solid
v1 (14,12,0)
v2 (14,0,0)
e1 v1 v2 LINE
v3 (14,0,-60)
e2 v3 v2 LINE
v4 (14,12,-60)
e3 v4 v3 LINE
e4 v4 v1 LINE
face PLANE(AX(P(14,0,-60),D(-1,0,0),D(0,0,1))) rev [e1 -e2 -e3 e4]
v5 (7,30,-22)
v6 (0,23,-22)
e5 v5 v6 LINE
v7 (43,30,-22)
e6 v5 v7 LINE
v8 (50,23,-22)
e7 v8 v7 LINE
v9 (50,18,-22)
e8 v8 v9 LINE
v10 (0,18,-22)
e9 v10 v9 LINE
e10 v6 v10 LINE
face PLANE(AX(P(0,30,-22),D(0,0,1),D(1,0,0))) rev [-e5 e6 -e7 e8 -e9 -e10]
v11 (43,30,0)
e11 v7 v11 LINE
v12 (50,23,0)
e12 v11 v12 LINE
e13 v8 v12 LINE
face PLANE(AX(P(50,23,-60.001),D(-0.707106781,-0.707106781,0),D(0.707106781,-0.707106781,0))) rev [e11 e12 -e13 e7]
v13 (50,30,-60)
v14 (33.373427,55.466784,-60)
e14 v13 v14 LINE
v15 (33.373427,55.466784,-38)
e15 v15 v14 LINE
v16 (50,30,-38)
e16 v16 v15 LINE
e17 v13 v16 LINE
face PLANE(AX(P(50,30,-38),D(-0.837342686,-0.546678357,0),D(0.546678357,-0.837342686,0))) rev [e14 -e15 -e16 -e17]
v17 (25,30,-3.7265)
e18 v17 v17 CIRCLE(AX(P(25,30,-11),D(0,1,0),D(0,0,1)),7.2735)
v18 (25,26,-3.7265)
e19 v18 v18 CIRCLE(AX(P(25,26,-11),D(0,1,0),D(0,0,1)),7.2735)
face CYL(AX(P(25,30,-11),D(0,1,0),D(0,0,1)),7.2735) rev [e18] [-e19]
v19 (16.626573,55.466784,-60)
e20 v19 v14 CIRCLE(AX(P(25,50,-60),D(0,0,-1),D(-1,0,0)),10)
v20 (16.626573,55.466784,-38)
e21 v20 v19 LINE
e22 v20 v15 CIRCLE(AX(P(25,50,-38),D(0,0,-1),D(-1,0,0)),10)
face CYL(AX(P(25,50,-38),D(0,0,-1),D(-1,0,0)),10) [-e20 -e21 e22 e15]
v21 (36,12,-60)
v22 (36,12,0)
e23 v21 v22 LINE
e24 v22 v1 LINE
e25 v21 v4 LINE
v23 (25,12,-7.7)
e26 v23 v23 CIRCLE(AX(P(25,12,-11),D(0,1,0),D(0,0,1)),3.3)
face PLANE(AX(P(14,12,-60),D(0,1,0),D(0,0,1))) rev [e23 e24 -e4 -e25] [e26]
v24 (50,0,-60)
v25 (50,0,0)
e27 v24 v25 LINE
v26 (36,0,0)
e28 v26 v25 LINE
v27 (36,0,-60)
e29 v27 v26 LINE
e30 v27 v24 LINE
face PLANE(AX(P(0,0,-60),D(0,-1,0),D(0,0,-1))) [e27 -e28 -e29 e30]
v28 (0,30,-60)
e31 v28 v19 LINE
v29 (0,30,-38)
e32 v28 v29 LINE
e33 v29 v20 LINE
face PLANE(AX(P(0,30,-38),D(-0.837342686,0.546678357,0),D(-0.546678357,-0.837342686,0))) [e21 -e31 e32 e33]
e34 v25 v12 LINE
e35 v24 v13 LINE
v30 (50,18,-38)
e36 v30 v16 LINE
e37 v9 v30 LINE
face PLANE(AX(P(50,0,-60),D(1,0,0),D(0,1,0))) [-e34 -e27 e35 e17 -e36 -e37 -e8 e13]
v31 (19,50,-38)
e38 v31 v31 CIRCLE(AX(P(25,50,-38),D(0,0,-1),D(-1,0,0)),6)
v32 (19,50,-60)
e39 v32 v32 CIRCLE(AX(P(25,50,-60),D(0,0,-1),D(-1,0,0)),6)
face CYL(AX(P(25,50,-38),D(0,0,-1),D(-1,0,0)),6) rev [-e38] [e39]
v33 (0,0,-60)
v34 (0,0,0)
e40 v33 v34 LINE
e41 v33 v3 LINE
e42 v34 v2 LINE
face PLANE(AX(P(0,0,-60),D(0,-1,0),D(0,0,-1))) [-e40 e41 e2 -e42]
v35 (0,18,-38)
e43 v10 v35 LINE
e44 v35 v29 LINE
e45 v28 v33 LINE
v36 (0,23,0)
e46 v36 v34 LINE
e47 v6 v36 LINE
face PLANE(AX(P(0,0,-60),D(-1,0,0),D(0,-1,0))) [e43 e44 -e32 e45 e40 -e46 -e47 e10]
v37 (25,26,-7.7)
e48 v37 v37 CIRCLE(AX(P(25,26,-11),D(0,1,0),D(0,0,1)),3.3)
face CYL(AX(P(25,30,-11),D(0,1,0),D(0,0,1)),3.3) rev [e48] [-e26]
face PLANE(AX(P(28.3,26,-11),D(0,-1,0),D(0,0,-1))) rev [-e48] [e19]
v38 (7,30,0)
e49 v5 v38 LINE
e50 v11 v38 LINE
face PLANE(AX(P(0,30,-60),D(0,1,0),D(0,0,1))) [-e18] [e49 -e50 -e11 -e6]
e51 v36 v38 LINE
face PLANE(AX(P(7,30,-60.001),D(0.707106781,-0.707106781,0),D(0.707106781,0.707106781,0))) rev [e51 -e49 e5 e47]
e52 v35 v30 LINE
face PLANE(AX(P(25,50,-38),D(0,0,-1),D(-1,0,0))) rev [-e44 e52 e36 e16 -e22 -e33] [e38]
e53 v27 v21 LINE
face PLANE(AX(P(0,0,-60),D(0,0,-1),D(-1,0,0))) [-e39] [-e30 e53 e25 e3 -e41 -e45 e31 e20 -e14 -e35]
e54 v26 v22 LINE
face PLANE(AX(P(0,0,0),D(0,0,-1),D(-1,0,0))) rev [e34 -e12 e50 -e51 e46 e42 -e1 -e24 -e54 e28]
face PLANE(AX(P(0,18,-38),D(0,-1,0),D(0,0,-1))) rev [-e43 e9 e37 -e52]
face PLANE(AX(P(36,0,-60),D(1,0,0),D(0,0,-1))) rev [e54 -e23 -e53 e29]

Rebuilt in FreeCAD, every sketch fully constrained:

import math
import FreeCAD as App
import Part
import Sketcher
from FreeCAD import Vector

doc = App.newDocument("Part")
body = doc.addObject("PartDesign::Body", "Body")

# Sketch on XY plane
sketch1 = body.newObject("Sketcher::SketchObject", "Sketch")
sketch1.AttachmentSupport = (doc.getObject("XY_Plane"), [""])
sketch1.MapMode = "FlatFace"
sketch1.addGeometry([
    Part.LineSegment(Vector(0, 30, 0), Vector(0, 0, 0)),
    Part.LineSegment(Vector(0, 0, 0), Vector(50, 0, 0)),
    Part.LineSegment(Vector(50, 0, 0), Vector(50, 30, 0)),
    Part.LineSegment(Vector(50, 30, 0), Vector(0, 30, 0)),
], False)
sketch1.addConstraint([
    Sketcher.Constraint("Coincident", 0, 2, 1, 1),
    Sketcher.Constraint("Coincident", 1, 2, 2, 1),
    Sketcher.Constraint("Coincident", 2, 2, 3, 1),
    Sketcher.Constraint("Coincident", 3, 2, 0, 1),
    Sketcher.Constraint("Vertical", 0),
    Sketcher.Constraint("Horizontal", 1),
    Sketcher.Constraint("Vertical", 2),
    Sketcher.Constraint("Horizontal", 3),
    Sketcher.Constraint("Coincident", 0, 2, -1, 1),
    Sketcher.Constraint("DistanceX", 1, 1, 1, 2, 50.0),
    Sketcher.Constraint("DistanceY", 0, 2, 0, 1, 30.0),
])
pad1 = body.newObject("PartDesign::Pad", "Pad")
pad1.Profile = sketch1
pad1.Length = 60
pad1.Reversed = True

# Sketch on XY plane
sketch2 = body.newObject("Sketcher::SketchObject", "Sketch001")
sketch2.AttachmentSupport = (doc.getObject("XY_Plane"), [""])
sketch2.MapMode = "FlatFace"
sketch2.AttachmentOffset = App.Placement(Vector(0, 0, -60), App.Rotation())
sketch2.addGeometry([
    Part.LineSegment(Vector(33, 55, 0), Vector(50, 30, 0)),  # 0
    Part.LineSegment(Vector(50, 30, 0), Vector(0, 30, 0)),  # 1
    Part.LineSegment(Vector(0, 30, 0), Vector(17, 55, 0)),  # 2
    Part.ArcOfCircle(Part.Circle(Vector(25, 50, 0), Vector(0, 0, 1), 10), math.radians(33), math.radians(147)),  # 3
    Part.Circle(Vector(25, 50, 0), Vector(0, 0, 1), 6),  # 4
], False)
sketch2.addConstraint([
    Sketcher.Constraint("Coincident", 0, 2, 1, 1),
    Sketcher.Constraint("Coincident", 1, 2, 2, 1),
    Sketcher.Constraint("Tangent", 2, 2, 3, 2),
    Sketcher.Constraint("Tangent", 3, 1, 0, 1),
    Sketcher.Constraint("Horizontal", 1),
    Sketcher.Constraint("Coincident", 4, 3, 3, 3),
    Sketcher.Constraint("PointOnObject", 1, 2, -2),
    Sketcher.Constraint("Horizontal", 2, 2, 3, 1),
    Sketcher.Constraint("Diameter", 4, 12.0),
    Sketcher.Constraint("Radius", 3, 10.0),
    Sketcher.Constraint("DistanceX", 1, 2, 1, 1, 50.0),
    Sketcher.Constraint("DistanceY", -1, 1, 3, 3, 50.0),
    Sketcher.Constraint("DistanceY", -1, 1, 0, 2, 30.0),
])
pad2 = body.newObject("PartDesign::Pad", "Pad001")
pad2.Profile = sketch2
pad2.Length = 22

# Sketch on YZ plane
sketch3 = body.newObject("Sketcher::SketchObject", "Sketch002")
sketch3.AttachmentSupport = (doc.getObject("YZ_Plane"), [""])
sketch3.MapMode = "FlatFace"
sketch3.AttachmentOffset = App.Placement(Vector(0, 0, 50), App.Rotation())
sketch3.addGeometry([
    Part.LineSegment(Vector(30, -22, 0), Vector(18, -22, 0)),
    Part.LineSegment(Vector(18, -22, 0), Vector(18, -38, 0)),
    Part.LineSegment(Vector(18, -38, 0), Vector(30, -38, 0)),
    Part.LineSegment(Vector(30, -38, 0), Vector(30, -22, 0)),
], False)
sketch3.addConstraint([
    Sketcher.Constraint("Coincident", 0, 2, 1, 1),
    Sketcher.Constraint("Coincident", 1, 2, 2, 1),
    Sketcher.Constraint("Coincident", 2, 2, 3, 1),
    Sketcher.Constraint("Coincident", 3, 2, 0, 1),
    Sketcher.Constraint("Horizontal", 0),
    Sketcher.Constraint("Vertical", 1),
    Sketcher.Constraint("Horizontal", 2),
    Sketcher.Constraint("Vertical", 3),
    Sketcher.Constraint("DistanceX", 0, 2, 0, 1, 12.0),
    Sketcher.Constraint("DistanceY", 1, 2, 1, 1, 16.0),
    Sketcher.Constraint("DistanceX", -1, 1, 0, 2, 18.0),
    Sketcher.Constraint("DistanceY", 0, 2, -1, 1, 22.0),
])
pocket1 = body.newObject("PartDesign::Pocket", "Pocket")
pocket1.Profile = sketch3
pocket1.Type = "ThroughAll"

# Sketch on XY plane
sketch4 = body.newObject("Sketcher::SketchObject", "Sketch003")
sketch4.AttachmentSupport = (doc.getObject("XY_Plane"), [""])
sketch4.MapMode = "FlatFace"
sketch4.addGeometry([
    Part.LineSegment(Vector(14, 12, 0), Vector(14, 0, 0)),
    Part.LineSegment(Vector(14, 0, 0), Vector(36, 0, 0)),
    Part.LineSegment(Vector(36, 0, 0), Vector(36, 12, 0)),
    Part.LineSegment(Vector(36, 12, 0), Vector(14, 12, 0)),
], False)
sketch4.addConstraint([
    Sketcher.Constraint("Coincident", 0, 2, 1, 1),
    Sketcher.Constraint("Coincident", 1, 2, 2, 1),
    Sketcher.Constraint("Coincident", 2, 2, 3, 1),
    Sketcher.Constraint("Coincident", 3, 2, 0, 1),
    Sketcher.Constraint("Vertical", 0),
    Sketcher.Constraint("Horizontal", 1),
    Sketcher.Constraint("Vertical", 2),
    Sketcher.Constraint("Horizontal", 3),
    Sketcher.Constraint("PointOnObject", 0, 2, -1),
    Sketcher.Constraint("DistanceX", 1, 1, 1, 2, 22.0),
    Sketcher.Constraint("DistanceY", 0, 2, 0, 1, 12.0),
    Sketcher.Constraint("DistanceX", -1, 1, 0, 2, 14.0),
])
pocket2 = body.newObject("PartDesign::Pocket", "Pocket001")
pocket2.Profile = sketch4
pocket2.Type = "ThroughAll"

# Sketch on XY plane
sketch5 = body.newObject("Sketcher::SketchObject", "Sketch004")
sketch5.AttachmentSupport = (doc.getObject("XY_Plane"), [""])
sketch5.MapMode = "FlatFace"
sketch5.addGeometry([
    Part.LineSegment(Vector(50, 23, 0), Vector(50, 30, 0)),
    Part.LineSegment(Vector(50, 30, 0), Vector(43, 30, 0)),
    Part.LineSegment(Vector(43, 30, 0), Vector(50, 23, 0)),
], False)
sketch5.addConstraint([
    Sketcher.Constraint("Coincident", 0, 2, 1, 1),
    Sketcher.Constraint("Coincident", 1, 2, 2, 1),
    Sketcher.Constraint("Coincident", 2, 2, 0, 1),
    Sketcher.Constraint("Vertical", 0),
    Sketcher.Constraint("Horizontal", 1),
    Sketcher.Constraint("Equal", 1, 0),
    Sketcher.Constraint("DistanceX", 1, 2, 1, 1, 7.0),
    Sketcher.Constraint("DistanceX", -1, 1, 0, 2, 50.0),
    Sketcher.Constraint("DistanceY", -1, 1, 0, 2, 30.0),
])
pocket3 = body.newObject("PartDesign::Pocket", "Pocket002")
pocket3.Profile = sketch5
pocket3.Type = "UpToFirst"

# Sketch on XY plane
sketch6 = body.newObject("Sketcher::SketchObject", "Sketch005")
sketch6.AttachmentSupport = (doc.getObject("XY_Plane"), [""])
sketch6.MapMode = "FlatFace"
sketch6.addGeometry([
    Part.LineSegment(Vector(0, 30, 0), Vector(0, 23, 0)),
    Part.LineSegment(Vector(0, 23, 0), Vector(7, 30, 0)),
    Part.LineSegment(Vector(7, 30, 0), Vector(0, 30, 0)),
], False)
sketch6.addConstraint([
    Sketcher.Constraint("Coincident", 0, 2, 1, 1),
    Sketcher.Constraint("Coincident", 1, 2, 2, 1),
    Sketcher.Constraint("Coincident", 2, 2, 0, 1),
    Sketcher.Constraint("Vertical", 0),
    Sketcher.Constraint("Horizontal", 2),
    Sketcher.Constraint("PointOnObject", 0, 2, -2),
    Sketcher.Constraint("Equal", 2, 0),
    Sketcher.Constraint("DistanceX", 2, 2, 2, 1, 7.0),
    Sketcher.Constraint("DistanceY", -1, 1, 0, 2, 23.0),
])
pocket4 = body.newObject("PartDesign::Pocket", "Pocket003")
pocket4.Profile = sketch6
pocket4.Type = "UpToFirst"

# Sketch on XZ plane
sketch7 = body.newObject("Sketcher::SketchObject", "Sketch006")
sketch7.AttachmentSupport = (doc.getObject("XZ_Plane"), [""])
sketch7.MapMode = "FlatFace"
sketch7.AttachmentOffset = App.Placement(Vector(0, 0, -30), App.Rotation())
sketch7.addGeometry(Part.Circle(Vector(25, -11, 0), Vector(0, 0, 1), 3.3), False)
sketch7.addConstraint([
    Sketcher.Constraint("Diameter", 0, 6.6),
    Sketcher.Constraint("DistanceX", -1, 1, 0, 3, 25.0),
    Sketcher.Constraint("DistanceY", 0, 3, -1, 1, 11.0),
])
doc.recompute()
hole = body.newObject("PartDesign::Hole", "Hole")
hole.Profile = sketch7
hole.ThreadType = "None"
hole.Diameter = 6.6
hole.DepthType = "ThroughAll"
hole.HoleCutType = "Counterbore"
hole.HoleCutDiameter = 14.547
hole.HoleCutDepth = 4
hole.Reversed = True

doc.recompute()
